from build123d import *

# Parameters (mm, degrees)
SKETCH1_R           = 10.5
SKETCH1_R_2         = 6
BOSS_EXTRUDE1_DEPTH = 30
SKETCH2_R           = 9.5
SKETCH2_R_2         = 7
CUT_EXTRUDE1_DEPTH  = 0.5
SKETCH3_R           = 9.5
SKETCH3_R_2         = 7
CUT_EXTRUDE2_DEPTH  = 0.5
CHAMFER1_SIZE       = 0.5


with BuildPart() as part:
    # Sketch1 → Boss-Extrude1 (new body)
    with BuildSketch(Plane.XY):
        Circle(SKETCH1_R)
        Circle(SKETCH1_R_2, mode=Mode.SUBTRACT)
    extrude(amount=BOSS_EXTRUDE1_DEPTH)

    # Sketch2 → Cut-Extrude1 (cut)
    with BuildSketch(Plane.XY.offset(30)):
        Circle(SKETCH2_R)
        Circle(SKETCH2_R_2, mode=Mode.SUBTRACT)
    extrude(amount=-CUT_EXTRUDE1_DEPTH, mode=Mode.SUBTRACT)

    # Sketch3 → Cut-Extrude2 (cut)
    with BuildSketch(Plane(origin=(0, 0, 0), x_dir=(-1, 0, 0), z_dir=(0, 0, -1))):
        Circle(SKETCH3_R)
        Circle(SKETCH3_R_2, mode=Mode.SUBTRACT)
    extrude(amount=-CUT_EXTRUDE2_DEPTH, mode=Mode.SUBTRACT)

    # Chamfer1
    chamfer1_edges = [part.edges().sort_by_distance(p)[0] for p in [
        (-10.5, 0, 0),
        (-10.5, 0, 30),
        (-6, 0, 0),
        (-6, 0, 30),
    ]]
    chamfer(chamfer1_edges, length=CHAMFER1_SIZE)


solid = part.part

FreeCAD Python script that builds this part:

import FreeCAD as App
import Part
import Sketcher
Q = App.Units.Quantity


def edges_at(feature, points):
    """Names of the edges that pass closest to the given points."""
    edges = feature.Shape.Edges
    near = lambda p: min(range(len(edges)), key=lambda i: edges[i].distToShape(Part.Vertex(*p))[0])
    return sorted({f"Edge{near(p) + 1}" for p in points})

doc = App.newDocument("Part")
body = doc.addObject("PartDesign::Body", "Body")

# Sketch on XY plane
sketch1 = doc.addObject("Sketcher::SketchObject", "Sketch")
body.addObject(sketch1)
sketch1.AttachmentSupport = (doc.XY_Plane, [""])
sketch1.MapMode = "FlatFace"
sketch1.addGeometry([
    Part.Circle(App.Vector(0, 0, 0), App.Vector(0, 0, 1), 10),
    Part.Circle(App.Vector(0, 0, 0), App.Vector(0, 0, 1), 6),
], False)
sketch1.addConstraint([
    Sketcher.Constraint("Coincident", 0, 3, -1, 1),
    Sketcher.Constraint("Coincident", 1, 3, -1, 1),
    Sketcher.Constraint("Diameter", 0, Q("21 mm")),
    Sketcher.Constraint("Diameter", 1, Q("12 mm")),
])
pad1 = doc.addObject("PartDesign::Pad", "Pad")
body.addObject(pad1)
pad1.Profile = sketch1
pad1.Length = 30

# Sketch on XY plane
sketch2 = doc.addObject("Sketcher::SketchObject", "Sketch001")
body.addObject(sketch2)
sketch2.AttachmentSupport = (doc.XY_Plane, [""])
sketch2.MapMode = "FlatFace"
sketch2.AttachmentOffset = App.Placement(App.Vector(0, 0, 30), App.Rotation())
sketch2.addGeometry([
    Part.Circle(App.Vector(0, 0, 0), App.Vector(0, 0, 1), 10),
    Part.Circle(App.Vector(0, 0, 0), App.Vector(0, 0, 1), 7),
], False)
sketch2.addConstraint([
    Sketcher.Constraint("Coincident", 0, 3, -1, 1),
    Sketcher.Constraint("Coincident", 1, 3, -1, 1),
    Sketcher.Constraint("Diameter", 0, Q("19 mm")),
    Sketcher.Constraint("Diameter", 1, Q("14 mm")),
])
pocket1 = doc.addObject("PartDesign::Pocket", "Pocket")
body.addObject(pocket1)
pocket1.Profile = sketch2
pocket1.Length = 0.5

# Sketch on XY plane
sketch3 = doc.addObject("Sketcher::SketchObject", "Sketch002")
body.addObject(sketch3)
sketch3.AttachmentSupport = (doc.XY_Plane, [""])
sketch3.MapMode = "FlatFace"
sketch3.addGeometry([
    Part.Circle(App.Vector(0, 0, 0), App.Vector(0, 0, 1), 10),
    Part.Circle(App.Vector(0, 0, 0), App.Vector(0, 0, 1), 7),
], False)
sketch3.addConstraint([
    Sketcher.Constraint("Coincident", 0, 3, -1, 1),
    Sketcher.Constraint("Coincident", 1, 3, -1, 1),
    Sketcher.Constraint("Diameter", 0, Q("19 mm")),
    Sketcher.Constraint("Diameter", 1, Q("14 mm")),
])
pocket2 = doc.addObject("PartDesign::Pocket", "Pocket001")
body.addObject(pocket2)
pocket2.Profile = sketch3
pocket2.Length = 0.5
pocket2.Reversed = True
doc.recompute()

chamfer = doc.addObject("PartDesign::Chamfer", "Chamfer")
body.addObject(chamfer)
chamfer.Base = (pocket2, edges_at(pocket2, [
    (-10.5, 0, 0),
    (-10.5, 0, 30),
    (-6, 0, 0),
    (-6, 0, 30),
]))
chamfer.Size = 0.5

doc.recompute()
